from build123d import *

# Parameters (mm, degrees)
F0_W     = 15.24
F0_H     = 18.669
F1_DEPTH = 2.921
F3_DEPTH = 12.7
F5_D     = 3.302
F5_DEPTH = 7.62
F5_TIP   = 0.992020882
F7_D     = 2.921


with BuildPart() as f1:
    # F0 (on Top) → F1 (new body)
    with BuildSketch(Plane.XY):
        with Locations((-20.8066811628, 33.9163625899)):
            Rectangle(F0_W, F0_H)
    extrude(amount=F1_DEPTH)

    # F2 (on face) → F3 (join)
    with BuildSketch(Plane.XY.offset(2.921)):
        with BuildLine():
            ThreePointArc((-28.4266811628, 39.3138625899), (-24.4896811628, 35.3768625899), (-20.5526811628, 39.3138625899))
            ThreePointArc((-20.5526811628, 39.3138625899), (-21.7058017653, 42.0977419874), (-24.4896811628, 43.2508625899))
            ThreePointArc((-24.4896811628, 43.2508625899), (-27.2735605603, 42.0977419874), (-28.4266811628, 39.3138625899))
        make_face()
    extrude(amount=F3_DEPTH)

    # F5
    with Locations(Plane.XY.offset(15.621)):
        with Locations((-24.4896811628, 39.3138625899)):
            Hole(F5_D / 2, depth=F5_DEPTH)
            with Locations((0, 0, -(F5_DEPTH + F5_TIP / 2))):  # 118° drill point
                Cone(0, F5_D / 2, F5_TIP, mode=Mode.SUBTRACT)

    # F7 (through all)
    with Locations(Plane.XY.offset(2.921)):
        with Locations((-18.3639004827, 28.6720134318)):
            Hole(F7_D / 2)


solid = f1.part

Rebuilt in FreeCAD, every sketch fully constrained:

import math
import FreeCAD as App
import Part
import Sketcher
from FreeCAD import Vector
Q = App.Units.Quantity


def add_polygon(sketch, points):
    """Adds a closed chain of lines whose ends are joined by coincident constraints."""
    first, n = sketch.GeometryCount, len(points)
    for a, b in zip(points, points[1:] + points[:1]):
        sketch.addGeometry(Part.LineSegment(App.Vector(*a, 0), App.Vector(*b, 0)), False)
    for i in range(n):
        sketch.addConstraint(Sketcher.Constraint("Coincident", first + i, 2, first + (i + 1) % n, 1))

doc = App.newDocument("Part")
body = doc.addObject("PartDesign::Body", "Body")

# Sketch on XY plane
sketch1 = body.newObject("Sketcher::SketchObject", "Sketch")
sketch1.AttachmentSupport = (doc.getObject("XY_Plane"), [""])
sketch1.MapMode = "FlatFace"
add_polygon(sketch1, [(-28, 43), (-28, 25), (-13, 25), (-13, 43)])  # lines 0-3
sketch1.addConstraint(Sketcher.Constraint("Vertical", 0))
sketch1.addConstraint(Sketcher.Constraint("Horizontal", 1))
sketch1.addConstraint(Sketcher.Constraint("Vertical", 2))
sketch1.addConstraint(Sketcher.Constraint("Horizontal", 3))
sketch1.addConstraint(Sketcher.Constraint("DistanceX", 1, 1, 1, 2, Q("0.6 in")))
sketch1.addConstraint(Sketcher.Constraint("DistanceY", 0, 2, 0, 1, Q("0.735 in")))
sketch1.addConstraint(Sketcher.Constraint("DistanceX", 0, 2, -1, 1, Q("28.426681 mm")))
sketch1.addConstraint(Sketcher.Constraint("DistanceY", -1, 1, 0, 2, Q("24.581863 mm")))
pad1 = body.newObject("PartDesign::Pad", "Pad")
pad1.Profile = sketch1
pad1.Length = Q("0.115 in")

# Sketch on XY plane
sketch2 = body.newObject("Sketcher::SketchObject", "Sketch001")
sketch2.AttachmentSupport = (doc.getObject("XY_Plane"), [""])
sketch2.MapMode = "FlatFace"
sketch2.AttachmentOffset = App.Placement(Vector(0, 0, 0.115 * 25.4), App.Rotation())
sketch2.addGeometry(Part.ArcOfCircle(Part.Circle(Vector(-24.5, 39.3, 0), Vector(0, 0, 1), 3.9), math.radians(180), math.radians(360)), False)
sketch2.addGeometry(Part.ArcOfCircle(Part.Circle(Vector(-24.5, 39.3, 0), Vector(0, 0, 1), 3.9), math.radians(0), math.radians(90)), False)
sketch2.addGeometry(Part.ArcOfCircle(Part.Circle(Vector(-24.5, 39.3, 0), Vector(0, 0, 1), 3.9), math.radians(90), math.radians(180)), False)
sketch2.addConstraint(Sketcher.Constraint("Tangent", 0, 2, 1, 1))
sketch2.addConstraint(Sketcher.Constraint("Tangent", 1, 2, 2, 1))
sketch2.addConstraint(Sketcher.Constraint("Tangent", 2, 2, 0, 1))
sketch2.addConstraint(Sketcher.Constraint("Horizontal", 2, 3, 0, 2))
sketch2.addConstraint(Sketcher.Constraint("Horizontal", 0, 2, 2, 2))
sketch2.addConstraint(Sketcher.Constraint("Vertical", 2, 3, 1, 2))
sketch2.addConstraint(Sketcher.Constraint("Radius", 0, Q("0.155 in")))
sketch2.addConstraint(Sketcher.Constraint("DistanceX", 0, 3, -1, 1, Q("24.489681 mm")))
sketch2.addConstraint(Sketcher.Constraint("DistanceY", -1, 1, 0, 3, Q("39.313863 mm")))
pad2 = body.newObject("PartDesign::Pad", "Pad001")
pad2.Profile = sketch2
pad2.Length = Q("0.5 in")

# Sketch on XY plane
sketch3 = body.newObject("Sketcher::SketchObject", "Sketch002")
sketch3.AttachmentSupport = (doc.getObject("XY_Plane"), [""])
sketch3.MapMode = "FlatFace"
sketch3.AttachmentOffset = App.Placement(Vector(0, 0, 0.615 * 25.4), App.Rotation())
sketch3.addGeometry(Part.Circle(Vector(-24.5, 39.3, 0), Vector(0, 0, 1), 1.7), False)
sketch3.addConstraint(Sketcher.Constraint("Diameter", 0, Q("0.13 in")))
sketch3.addConstraint(Sketcher.Constraint("DistanceX", 0, 3, -1, 1, Q("24.489681 mm")))
sketch3.addConstraint(Sketcher.Constraint("DistanceY", -1, 1, 0, 3, Q("39.313863 mm")))
doc.recompute()
hole = body.newObject("PartDesign::Hole", "Hole")
hole.Profile = sketch3
hole.ThreadType = "None"
hole.Diameter = Q("0.13 in")
hole.DepthType = "Dimension"
hole.Depth = Q("0.3 in")
hole.DrillPoint = "Angled"
hole.DrillPointAngle = 118

# Sketch on XY plane
sketch4 = body.newObject("Sketcher::SketchObject", "Sketch003")
sketch4.AttachmentSupport = (doc.getObject("XY_Plane"), [""])
sketch4.MapMode = "FlatFace"
sketch4.AttachmentOffset = App.Placement(Vector(0, 0, 0.115 * 25.4), App.Rotation())
sketch4.addGeometry(Part.Circle(Vector(-18.4, 28.7, 0), Vector(0, 0, 1), 1.5), False)
sketch4.addConstraint(Sketcher.Constraint("Diameter", 0, Q("0.115 in")))
sketch4.addConstraint(Sketcher.Constraint("DistanceX", 0, 3, -1, 1, Q("18.3639 mm")))
sketch4.addConstraint(Sketcher.Constraint("DistanceY", -1, 1, 0, 3, Q("28.672013 mm")))
doc.recompute()
hole2 = body.newObject("PartDesign::Hole", "Hole001")
hole2.Profile = sketch4
hole2.ThreadType = "None"
hole2.Diameter = Q("0.115 in")
hole2.DepthType = "ThroughAll"

doc.recompute()
